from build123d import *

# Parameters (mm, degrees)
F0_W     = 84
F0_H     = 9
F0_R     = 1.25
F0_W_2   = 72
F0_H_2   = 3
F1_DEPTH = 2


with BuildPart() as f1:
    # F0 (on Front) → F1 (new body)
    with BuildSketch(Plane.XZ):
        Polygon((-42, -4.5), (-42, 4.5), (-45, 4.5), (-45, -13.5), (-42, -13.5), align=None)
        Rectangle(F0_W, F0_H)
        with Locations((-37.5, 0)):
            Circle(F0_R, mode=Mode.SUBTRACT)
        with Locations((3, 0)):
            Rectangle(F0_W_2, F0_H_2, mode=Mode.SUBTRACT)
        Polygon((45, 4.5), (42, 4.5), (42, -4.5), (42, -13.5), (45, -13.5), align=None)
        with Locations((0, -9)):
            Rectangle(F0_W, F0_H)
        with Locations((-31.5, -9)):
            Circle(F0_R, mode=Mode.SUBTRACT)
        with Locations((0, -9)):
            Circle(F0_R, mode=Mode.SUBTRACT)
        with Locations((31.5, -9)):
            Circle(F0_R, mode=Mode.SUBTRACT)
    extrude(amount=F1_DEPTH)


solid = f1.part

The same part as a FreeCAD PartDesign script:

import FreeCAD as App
import Part
import Sketcher
from FreeCAD import Vector
Q = App.Units.Quantity


def add_polygon(sketch, points):
    """Adds a closed chain of lines whose ends are joined by coincident constraints."""
    first, n = sketch.GeometryCount, len(points)
    for a, b in zip(points, points[1:] + points[:1]):
        sketch.addGeometry(Part.LineSegment(App.Vector(*a, 0), App.Vector(*b, 0)), False)
    for i in range(n):
        sketch.addConstraint(Sketcher.Constraint("Coincident", first + i, 2, first + (i + 1) % n, 1))

doc = App.newDocument("Part")
body = doc.addObject("PartDesign::Body", "Body")

# Sketch on XZ plane
sketch1 = body.newObject("Sketcher::SketchObject", "Sketch")
sketch1.AttachmentSupport = (doc.getObject("XZ_Plane"), [""])
sketch1.MapMode = "FlatFace"
add_polygon(sketch1, [(-45, 4.5), (-45, -13.5), (45, -13.5), (45, 4.5)])  # lines 0-3
sketch1.addGeometry(Part.Circle(Vector(-31.5, -9, 0), Vector(0, 0, 1), 1.2), False)  # 4
sketch1.addGeometry(Part.Circle(Vector(0, -9, 0), Vector(0, 0, 1), 1.2), False)  # 5
sketch1.addGeometry(Part.Circle(Vector(31.5, -9, 0), Vector(0, 0, 1), 1.2), False)  # 6
sketch1.addGeometry(Part.Circle(Vector(-37.5, 0, 0), Vector(0, 0, 1), 1.2), False)  # 7
add_polygon(sketch1, [(39, -1.5), (-33, -1.5), (-33, 1.5), (39, 1.5)])  # lines 8-11
sketch1.addConstraint(Sketcher.Constraint("Vertical", 0))
sketch1.addConstraint(Sketcher.Constraint("Horizontal", 1))
sketch1.addConstraint(Sketcher.Constraint("Vertical", 2))
sketch1.addConstraint(Sketcher.Constraint("Horizontal", 3))
sketch1.addConstraint(Sketcher.Constraint("Horizontal", 8))
sketch1.addConstraint(Sketcher.Constraint("Vertical", 9))
sketch1.addConstraint(Sketcher.Constraint("Horizontal", 10))
sketch1.addConstraint(Sketcher.Constraint("Vertical", 11))
sketch1.addConstraint(Sketcher.Constraint("Equal", 4, 5))
sketch1.addConstraint(Sketcher.Constraint("Equal", 5, 6))
sketch1.addConstraint(Sketcher.Constraint("Equal", 6, 7))
sketch1.addConstraint(Sketcher.Constraint("Symmetric", 4, 3, 6, 3, -2))
sketch1.addConstraint(Sketcher.Constraint("PointOnObject", 5, 3, -2))
sketch1.addConstraint(Sketcher.Constraint("PointOnObject", 7, 3, -1))
sketch1.addConstraint(Sketcher.Constraint("Horizontal", 4, 3, 5, 3))
sketch1.addConstraint(Sketcher.Constraint("Diameter", 4, Q("2.5 mm")))
sketch1.addConstraint(Sketcher.Constraint("DistanceX", 1, 1, 1, 2, Q("90 mm")))
sketch1.addConstraint(Sketcher.Constraint("DistanceX", 8, 2, 8, 1, Q("72 mm")))
sketch1.addConstraint(Sketcher.Constraint("DistanceY", 0, 2, 0, 1, Q("18 mm")))
sketch1.addConstraint(Sketcher.Constraint("DistanceY", 9, 1, 9, 2, Q("3 mm")))
sketch1.addConstraint(Sketcher.Constraint("DistanceY", 4, 3, -1, 1, Q("9 mm")))
sketch1.addConstraint(Sketcher.Constraint("DistanceX", 0, 2, -1, 1, Q("45 mm")))
sketch1.addConstraint(Sketcher.Constraint("DistanceX", 8, 2, -1, 1, Q("33 mm")))
sketch1.addConstraint(Sketcher.Constraint("DistanceX", 4, 3, 6, 3, Q("63 mm")))
sketch1.addConstraint(Sketcher.Constraint("DistanceX", 7, 3, 4, 3, Q("6 mm")))
sketch1.addConstraint(Sketcher.Constraint("DistanceY", 8, 2, 3, 2, Q("6 mm")))
sketch1.addConstraint(Sketcher.Constraint("DistanceY", 0, 2, -1, 1, Q("13.5 mm")))
pad1 = body.newObject("PartDesign::Pad", "Pad")
pad1.Profile = sketch1
pad1.Length = 2

doc.recompute()
